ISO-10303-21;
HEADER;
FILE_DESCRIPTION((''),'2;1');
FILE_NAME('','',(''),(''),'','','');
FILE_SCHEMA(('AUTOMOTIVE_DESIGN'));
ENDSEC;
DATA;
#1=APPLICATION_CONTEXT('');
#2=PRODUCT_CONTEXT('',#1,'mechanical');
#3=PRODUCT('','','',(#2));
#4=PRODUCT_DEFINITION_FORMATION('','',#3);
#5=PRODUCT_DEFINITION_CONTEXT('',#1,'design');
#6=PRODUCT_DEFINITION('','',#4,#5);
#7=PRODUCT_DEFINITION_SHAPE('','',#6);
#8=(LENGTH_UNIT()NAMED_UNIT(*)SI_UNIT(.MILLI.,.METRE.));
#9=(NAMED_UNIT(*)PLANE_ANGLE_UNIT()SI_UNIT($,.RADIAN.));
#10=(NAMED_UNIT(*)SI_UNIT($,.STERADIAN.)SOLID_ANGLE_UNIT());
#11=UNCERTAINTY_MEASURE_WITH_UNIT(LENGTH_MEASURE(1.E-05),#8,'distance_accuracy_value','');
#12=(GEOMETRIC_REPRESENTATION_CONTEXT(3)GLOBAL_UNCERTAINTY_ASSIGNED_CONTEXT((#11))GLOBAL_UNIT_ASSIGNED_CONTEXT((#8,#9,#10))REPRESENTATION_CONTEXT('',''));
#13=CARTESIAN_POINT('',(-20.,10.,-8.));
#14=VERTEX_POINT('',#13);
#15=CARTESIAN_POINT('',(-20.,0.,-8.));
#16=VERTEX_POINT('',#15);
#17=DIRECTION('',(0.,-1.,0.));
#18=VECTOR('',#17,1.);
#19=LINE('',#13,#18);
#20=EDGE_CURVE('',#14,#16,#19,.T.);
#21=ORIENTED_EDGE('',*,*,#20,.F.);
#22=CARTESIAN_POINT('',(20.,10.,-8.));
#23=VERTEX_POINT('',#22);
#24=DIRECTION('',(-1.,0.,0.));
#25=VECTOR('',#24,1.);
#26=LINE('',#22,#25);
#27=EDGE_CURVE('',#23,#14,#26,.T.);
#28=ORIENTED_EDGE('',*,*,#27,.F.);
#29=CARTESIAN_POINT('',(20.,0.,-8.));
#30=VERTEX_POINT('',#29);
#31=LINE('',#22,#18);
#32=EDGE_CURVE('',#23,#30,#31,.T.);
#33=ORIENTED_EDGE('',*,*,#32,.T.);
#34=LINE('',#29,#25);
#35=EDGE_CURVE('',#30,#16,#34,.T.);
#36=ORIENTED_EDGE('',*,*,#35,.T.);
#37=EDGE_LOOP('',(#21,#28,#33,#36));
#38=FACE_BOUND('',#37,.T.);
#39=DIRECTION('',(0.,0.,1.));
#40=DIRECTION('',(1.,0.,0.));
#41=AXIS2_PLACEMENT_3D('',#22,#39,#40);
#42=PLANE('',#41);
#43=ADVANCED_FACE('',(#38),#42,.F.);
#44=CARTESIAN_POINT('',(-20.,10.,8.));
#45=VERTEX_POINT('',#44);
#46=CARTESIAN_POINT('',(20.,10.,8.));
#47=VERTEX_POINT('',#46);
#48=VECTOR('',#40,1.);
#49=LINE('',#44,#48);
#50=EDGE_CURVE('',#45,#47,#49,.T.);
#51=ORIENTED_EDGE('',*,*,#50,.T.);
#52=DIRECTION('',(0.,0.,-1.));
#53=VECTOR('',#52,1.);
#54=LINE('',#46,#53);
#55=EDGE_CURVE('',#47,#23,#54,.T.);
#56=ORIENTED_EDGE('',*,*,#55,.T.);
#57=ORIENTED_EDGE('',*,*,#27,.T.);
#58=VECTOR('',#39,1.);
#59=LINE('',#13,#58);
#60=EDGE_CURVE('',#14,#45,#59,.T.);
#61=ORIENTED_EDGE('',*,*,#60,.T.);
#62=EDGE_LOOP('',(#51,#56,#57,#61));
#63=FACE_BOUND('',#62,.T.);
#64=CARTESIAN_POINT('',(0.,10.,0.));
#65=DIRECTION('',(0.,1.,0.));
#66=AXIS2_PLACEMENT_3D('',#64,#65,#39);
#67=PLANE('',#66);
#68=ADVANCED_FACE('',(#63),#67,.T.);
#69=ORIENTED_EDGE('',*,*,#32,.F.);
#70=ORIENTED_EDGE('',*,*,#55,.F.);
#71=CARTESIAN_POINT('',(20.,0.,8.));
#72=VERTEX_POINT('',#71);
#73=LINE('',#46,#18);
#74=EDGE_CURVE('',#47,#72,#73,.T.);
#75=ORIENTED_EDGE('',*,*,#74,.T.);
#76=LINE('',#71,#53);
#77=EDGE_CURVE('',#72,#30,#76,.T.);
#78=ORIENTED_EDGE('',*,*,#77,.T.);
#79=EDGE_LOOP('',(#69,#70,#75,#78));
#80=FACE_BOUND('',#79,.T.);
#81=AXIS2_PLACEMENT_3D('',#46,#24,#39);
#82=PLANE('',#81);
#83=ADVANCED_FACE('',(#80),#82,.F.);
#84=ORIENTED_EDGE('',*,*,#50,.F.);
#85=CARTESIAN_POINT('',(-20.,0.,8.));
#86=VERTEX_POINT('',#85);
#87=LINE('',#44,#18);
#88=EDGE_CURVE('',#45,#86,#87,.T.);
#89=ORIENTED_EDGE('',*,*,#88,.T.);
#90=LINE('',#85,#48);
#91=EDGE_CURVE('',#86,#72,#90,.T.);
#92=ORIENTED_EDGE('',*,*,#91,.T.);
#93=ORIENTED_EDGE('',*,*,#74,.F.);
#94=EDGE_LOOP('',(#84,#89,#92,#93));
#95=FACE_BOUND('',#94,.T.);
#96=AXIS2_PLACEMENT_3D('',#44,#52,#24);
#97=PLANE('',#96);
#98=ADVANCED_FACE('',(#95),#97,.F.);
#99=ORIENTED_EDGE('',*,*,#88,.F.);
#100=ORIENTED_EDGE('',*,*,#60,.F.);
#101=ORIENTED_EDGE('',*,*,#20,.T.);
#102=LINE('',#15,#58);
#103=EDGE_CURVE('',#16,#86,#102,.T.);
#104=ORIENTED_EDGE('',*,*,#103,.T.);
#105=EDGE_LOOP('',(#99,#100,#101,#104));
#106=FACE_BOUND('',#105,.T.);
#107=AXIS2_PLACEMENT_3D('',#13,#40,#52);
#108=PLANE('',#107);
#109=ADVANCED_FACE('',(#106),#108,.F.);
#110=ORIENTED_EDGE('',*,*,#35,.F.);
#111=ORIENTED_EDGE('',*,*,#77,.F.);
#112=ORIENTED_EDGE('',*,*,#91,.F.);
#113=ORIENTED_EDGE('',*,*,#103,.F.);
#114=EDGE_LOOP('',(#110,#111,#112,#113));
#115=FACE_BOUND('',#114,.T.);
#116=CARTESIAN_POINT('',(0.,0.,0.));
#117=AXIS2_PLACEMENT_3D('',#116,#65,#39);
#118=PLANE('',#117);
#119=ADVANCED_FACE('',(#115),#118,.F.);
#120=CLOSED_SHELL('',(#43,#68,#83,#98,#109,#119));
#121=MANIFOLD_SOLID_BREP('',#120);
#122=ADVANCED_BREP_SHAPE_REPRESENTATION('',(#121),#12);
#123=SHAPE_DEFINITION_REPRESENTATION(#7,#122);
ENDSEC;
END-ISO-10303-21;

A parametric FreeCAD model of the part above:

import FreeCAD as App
import Part
import Sketcher
from FreeCAD import Vector
Q = App.Units.Quantity

doc = App.newDocument("Part")
params = doc.addObject("Spreadsheet::Sheet", "Params")
for row, (alias, value) in enumerate([
    ("sketch1_width", "40 mm"),
    ("sketch1_height", "16 mm"),
    ("pad1_length", "10 mm"),
], start=1):
    params.set(f"A{row}", alias)
    params.set(f"B{row}", "=" + value)
    params.setAlias(f"B{row}", alias)

body = doc.addObject("PartDesign::Body", "Body")

sketch1 = body.newObject("Sketcher::SketchObject", "Sketch")
sketch1.AttachmentSupport = (doc.getObject("XZ_Plane"), [""])
sketch1.MapMode = "FlatFace"
sketch1.addGeometry([
    Part.LineSegment(Vector(-20, -8, 0), Vector(-20, 8, 0)),
    Part.LineSegment(Vector(-20, 8, 0), Vector(20, 8, 0)),
    Part.LineSegment(Vector(20, 8, 0), Vector(20, -8, 0)),
    Part.LineSegment(Vector(20, -8, 0), Vector(-20, -8, 0)),
], False)
sketch1.addConstraint([
    Sketcher.Constraint("Coincident", 0, 2, 1, 1),
    Sketcher.Constraint("Coincident", 1, 2, 2, 1),
    Sketcher.Constraint("Coincident", 2, 2, 3, 1),
    Sketcher.Constraint("Coincident", 3, 2, 0, 1),
    Sketcher.Constraint("Vertical", 0),
    Sketcher.Constraint("Horizontal", 1),
    Sketcher.Constraint("Vertical", 2),
    Sketcher.Constraint("Horizontal", 3),
    Sketcher.Constraint("Symmetric", 0, 2, 2, 2, -1, 1),
    Sketcher.Constraint("DistanceX", 1, 1, 1, 2, Q("40 mm")),
    Sketcher.Constraint("DistanceY", 0, 1, 0, 2, Q("16 mm")),
])
sketch1.setExpression("Constraints[9]", "Params.sketch1_width")
sketch1.setExpression("Constraints[10]", "Params.sketch1_height")
pad1 = body.newObject("PartDesign::Pad", "Pad")
pad1.Profile = sketch1
pad1.setExpression("Length", "Params.pad1_length")
pad1.Reversed = True

doc.recompute()
